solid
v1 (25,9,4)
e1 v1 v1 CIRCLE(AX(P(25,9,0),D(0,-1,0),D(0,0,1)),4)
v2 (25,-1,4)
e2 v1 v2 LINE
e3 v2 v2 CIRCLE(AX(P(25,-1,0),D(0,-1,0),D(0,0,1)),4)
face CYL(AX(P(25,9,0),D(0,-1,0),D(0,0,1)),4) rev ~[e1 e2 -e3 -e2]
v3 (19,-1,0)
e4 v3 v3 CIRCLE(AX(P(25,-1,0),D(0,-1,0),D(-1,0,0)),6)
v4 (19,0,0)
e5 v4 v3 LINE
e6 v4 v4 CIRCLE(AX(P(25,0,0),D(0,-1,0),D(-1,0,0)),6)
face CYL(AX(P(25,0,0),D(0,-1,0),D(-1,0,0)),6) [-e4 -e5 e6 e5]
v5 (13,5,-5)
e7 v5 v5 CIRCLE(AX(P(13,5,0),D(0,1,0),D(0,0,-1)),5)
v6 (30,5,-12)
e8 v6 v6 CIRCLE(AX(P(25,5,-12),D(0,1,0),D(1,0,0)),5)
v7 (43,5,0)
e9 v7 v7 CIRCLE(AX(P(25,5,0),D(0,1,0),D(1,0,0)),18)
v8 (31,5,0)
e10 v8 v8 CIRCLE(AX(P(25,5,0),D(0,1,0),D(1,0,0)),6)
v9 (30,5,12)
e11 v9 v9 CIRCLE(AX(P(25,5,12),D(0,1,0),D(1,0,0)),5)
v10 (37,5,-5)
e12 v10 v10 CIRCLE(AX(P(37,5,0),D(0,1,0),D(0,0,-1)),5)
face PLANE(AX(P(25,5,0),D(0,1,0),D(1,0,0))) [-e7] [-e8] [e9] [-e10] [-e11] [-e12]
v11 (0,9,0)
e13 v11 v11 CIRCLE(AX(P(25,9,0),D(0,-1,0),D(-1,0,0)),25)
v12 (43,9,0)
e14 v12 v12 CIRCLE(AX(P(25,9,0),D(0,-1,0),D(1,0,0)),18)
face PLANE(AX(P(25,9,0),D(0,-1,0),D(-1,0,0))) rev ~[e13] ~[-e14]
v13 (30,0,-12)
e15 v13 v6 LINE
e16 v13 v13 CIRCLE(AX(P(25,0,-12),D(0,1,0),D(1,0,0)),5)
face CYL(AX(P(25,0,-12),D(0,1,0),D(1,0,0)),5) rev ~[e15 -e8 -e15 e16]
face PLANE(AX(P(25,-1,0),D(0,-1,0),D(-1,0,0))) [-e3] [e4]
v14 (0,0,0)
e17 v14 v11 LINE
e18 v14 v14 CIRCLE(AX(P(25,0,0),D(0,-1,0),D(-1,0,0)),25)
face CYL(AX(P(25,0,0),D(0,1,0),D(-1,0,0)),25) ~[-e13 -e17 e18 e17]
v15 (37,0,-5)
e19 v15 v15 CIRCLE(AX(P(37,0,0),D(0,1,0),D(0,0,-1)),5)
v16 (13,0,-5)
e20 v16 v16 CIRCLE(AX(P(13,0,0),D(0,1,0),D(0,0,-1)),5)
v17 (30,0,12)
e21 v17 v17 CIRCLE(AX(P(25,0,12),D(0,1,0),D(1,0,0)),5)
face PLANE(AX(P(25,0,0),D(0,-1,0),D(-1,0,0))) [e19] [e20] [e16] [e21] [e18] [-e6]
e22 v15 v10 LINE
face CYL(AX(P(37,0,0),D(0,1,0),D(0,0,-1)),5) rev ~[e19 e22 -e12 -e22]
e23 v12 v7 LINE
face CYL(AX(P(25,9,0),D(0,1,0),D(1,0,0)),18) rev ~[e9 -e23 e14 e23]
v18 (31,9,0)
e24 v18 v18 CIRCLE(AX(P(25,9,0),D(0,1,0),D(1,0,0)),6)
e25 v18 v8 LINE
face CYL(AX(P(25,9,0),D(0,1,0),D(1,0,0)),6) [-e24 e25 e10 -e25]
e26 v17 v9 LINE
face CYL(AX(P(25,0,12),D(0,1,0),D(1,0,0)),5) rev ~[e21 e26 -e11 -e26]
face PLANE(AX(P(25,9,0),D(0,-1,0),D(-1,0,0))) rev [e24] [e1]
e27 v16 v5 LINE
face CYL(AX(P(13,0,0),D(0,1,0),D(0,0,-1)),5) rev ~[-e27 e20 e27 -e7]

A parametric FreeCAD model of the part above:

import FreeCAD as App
import Part
import Sketcher

V = App.Vector


def add_polygon(sketch, points):
    """Adds a closed chain of lines whose ends are joined by coincident constraints."""
    first, n = sketch.GeometryCount, len(points)
    for a, b in zip(points, points[1:] + points[:1]):
        sketch.addGeometry(Part.LineSegment(App.Vector(*a, 0), App.Vector(*b, 0)), False)
    for i in range(n):
        sketch.addConstraint(Sketcher.Constraint("Coincident", first + i, 2, first + (i + 1) % n, 1))

doc = App.newDocument("Part")
body = doc.addObject("PartDesign::Body", "Body")

sketch1 = body.newObject("Sketcher::SketchObject", "Sketch")
sketch1.AttachmentSupport = (doc.getObject("XY_Plane"), [""])
sketch1.MapMode = "FlatFace"
add_polygon(sketch1, [(25, -1), (25, 9), (0, 9), (0, 0), (19, 0), (19, -1)])
sketch1.addGeometry(Part.LineSegment(V(25, 9, 0), V(25, -1, 0)), True)
sketch1.addConstraint(Sketcher.Constraint("Vertical", 0))
sketch1.addConstraint(Sketcher.Constraint("Horizontal", 1))
sketch1.addConstraint(Sketcher.Constraint("Vertical", 2))
sketch1.addConstraint(Sketcher.Constraint("Horizontal", 3))
sketch1.addConstraint(Sketcher.Constraint("Vertical", 4))
sketch1.addConstraint(Sketcher.Constraint("Horizontal", 5))
sketch1.addConstraint(Sketcher.Constraint("Vertical", 6))
sketch1.addConstraint(Sketcher.Constraint("Coincident", 2, 2, -1, 1))
sketch1.addConstraint(Sketcher.Constraint("Coincident", 6, 1, 0, 2))
sketch1.addConstraint(Sketcher.Constraint("Horizontal", 4, 2, 6, 2))
sketch1.addConstraint(Sketcher.Constraint("DistanceY", 0, 1, 0, 2, 10.0))
sketch1.addConstraint(Sketcher.Constraint("DistanceY", 4, 2, 4, 1, 1.0))
sketch1.addConstraint(Sketcher.Constraint("DistanceX", 1, 2, 1, 1, 25.0))
sketch1.addConstraint(Sketcher.Constraint("DistanceX", 3, 1, 3, 2, 19.0))
revolution = body.newObject("PartDesign::Revolution", "Revolution")
revolution.Profile = sketch1
revolution.ReferenceAxis = (sketch1, ["Axis0"])
revolution.Angle = 360

sketch2 = body.newObject("Sketcher::SketchObject", "Sketch001")
sketch2.AttachmentSupport = (doc.getObject("XZ_Plane"), [""])
sketch2.MapMode = "FlatFace"
sketch2.AttachmentOffset = App.Placement(V(0, 0, -9), App.Rotation())
sketch2.addGeometry(Part.Circle(V(25, 0, 0), V(0, 0, 1), 18), False)
sketch2.addGeometry(Part.Circle(V(25, 0, 0), V(0, 0, 1), 6), False)
sketch2.addConstraint(Sketcher.Constraint("Coincident", 1, 3, 0, 3))
sketch2.addConstraint(Sketcher.Constraint("PointOnObject", 0, 3, -1))
sketch2.addConstraint(Sketcher.Constraint("Diameter", 0, 36.0))
sketch2.addConstraint(Sketcher.Constraint("Diameter", 1, 12.0))
sketch2.addConstraint(Sketcher.Constraint("DistanceX", -1, 1, 0, 3, 25.0))
pocket1 = body.newObject("PartDesign::Pocket", "Pocket")
pocket1.Profile = sketch2
pocket1.Length = 4
pocket1.Reversed = True

sketch3 = body.newObject("Sketcher::SketchObject", "Sketch002")
sketch3.AttachmentSupport = (doc.getObject("XZ_Plane"), [""])
sketch3.MapMode = "FlatFace"
sketch3.AttachmentOffset = App.Placement(V(0, 0, -9), App.Rotation())
sketch3.addGeometry(Part.Circle(V(25, 0, 0), V(0, 0, 1), 4), False)
sketch3.addConstraint(Sketcher.Constraint("PointOnObject", 0, 3, -1))
sketch3.addConstraint(Sketcher.Constraint("Diameter", 0, 8.0))
sketch3.addConstraint(Sketcher.Constraint("DistanceX", -1, 1, 0, 3, 25.0))
doc.recompute()
hole = body.newObject("PartDesign::Hole", "Hole")
hole.Profile = sketch3
hole.ThreadType = "None"
hole.Diameter = 8
hole.DepthType = "ThroughAll"
hole.Reversed = True

sketch4 = body.newObject("Sketcher::SketchObject", "Sketch003")
sketch4.AttachmentSupport = (doc.getObject("XZ_Plane"), [""])
sketch4.MapMode = "FlatFace"
sketch4.addGeometry(Part.Circle(V(37, 0, 0), V(0, 0, 1), 5), False)
sketch4.addGeometry(Part.Circle(V(13, 0, 0), V(0, 0, 1), 5), False)
sketch4.addConstraint(Sketcher.Constraint("Equal", 0, 1))
sketch4.addConstraint(Sketcher.Constraint("PointOnObject", 0, 3, -1))
sketch4.addConstraint(Sketcher.Constraint("PointOnObject", 1, 3, -1))
sketch4.addConstraint(Sketcher.Constraint("Diameter", 0, 10.0))
sketch4.addConstraint(Sketcher.Constraint("DistanceX", -1, 1, 0, 3, 37.0))
sketch4.addConstraint(Sketcher.Constraint("DistanceX", -1, 1, 1, 3, 13.0))
doc.recompute()
hole2 = body.newObject("PartDesign::Hole", "Hole001")
hole2.Profile = sketch4
hole2.ThreadType = "None"
hole2.Diameter = 10
hole2.DepthType = "ThroughAll"
doc.recompute()

datumline = body.newObject("PartDesign::Line", "DatumLine")
datumline.Placement = App.Placement(V(25, 0, 0), App.Rotation(V(0, 0, 1), V(0, 1, 0)))
polarpattern = body.newObject("PartDesign::PolarPattern", "PolarPattern")
polarpattern.Originals = [hole2]
polarpattern.Axis = (datumline, [""])
polarpattern.Angle = 360
polarpattern.Occurrences = 4
body.Tip = polarpattern

doc.recompute()
